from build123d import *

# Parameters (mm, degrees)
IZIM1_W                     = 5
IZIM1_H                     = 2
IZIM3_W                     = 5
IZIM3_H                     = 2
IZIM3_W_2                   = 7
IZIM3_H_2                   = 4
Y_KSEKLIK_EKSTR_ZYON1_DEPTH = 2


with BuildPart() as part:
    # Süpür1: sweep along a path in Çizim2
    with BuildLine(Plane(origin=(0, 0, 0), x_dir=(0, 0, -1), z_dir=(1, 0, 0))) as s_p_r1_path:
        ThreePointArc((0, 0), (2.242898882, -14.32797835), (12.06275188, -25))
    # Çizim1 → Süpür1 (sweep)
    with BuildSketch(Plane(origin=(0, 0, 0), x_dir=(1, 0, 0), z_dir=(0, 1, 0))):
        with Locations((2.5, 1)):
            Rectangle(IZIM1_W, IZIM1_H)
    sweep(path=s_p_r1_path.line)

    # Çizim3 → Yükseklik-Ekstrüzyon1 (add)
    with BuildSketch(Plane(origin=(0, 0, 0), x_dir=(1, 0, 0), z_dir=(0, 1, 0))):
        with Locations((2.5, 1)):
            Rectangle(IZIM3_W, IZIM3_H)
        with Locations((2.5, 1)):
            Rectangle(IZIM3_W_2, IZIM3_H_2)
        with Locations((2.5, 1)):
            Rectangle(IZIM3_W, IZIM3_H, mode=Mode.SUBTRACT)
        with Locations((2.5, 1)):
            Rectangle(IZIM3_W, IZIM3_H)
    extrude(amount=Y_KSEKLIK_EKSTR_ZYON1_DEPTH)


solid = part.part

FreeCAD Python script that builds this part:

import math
import FreeCAD as App
import Part
import Sketcher

V = App.Vector
Q = App.Units.Quantity


def add_polygon(sketch, points):
    """Adds a closed chain of lines whose ends are joined by coincident constraints."""
    first, n = sketch.GeometryCount, len(points)
    for a, b in zip(points, points[1:] + points[:1]):
        sketch.addGeometry(Part.LineSegment(App.Vector(*a, 0), App.Vector(*b, 0)), False)
    for i in range(n):
        sketch.addConstraint(Sketcher.Constraint("Coincident", first + i, 2, first + (i + 1) % n, 1))

doc = App.newDocument("Part")
body = doc.addObject("PartDesign::Body", "Body")

# Sketch on XZ plane
sketch1 = doc.addObject("Sketcher::SketchObject", "Sketch")
body.addObject(sketch1)
sketch1.AttachmentSupport = (doc.XZ_Plane, [""])
sketch1.MapMode = "FlatFace"
add_polygon(sketch1, [(0, -2), (0, 0), (5, 0), (5, -2)])  # lines 0-3
sketch1.addConstraint([
    Sketcher.Constraint("Vertical", 0),
    Sketcher.Constraint("Horizontal", 1),
    Sketcher.Constraint("Vertical", 2),
    Sketcher.Constraint("Horizontal", 3),
    Sketcher.Constraint("Coincident", 0, 2, -1, 1),
    Sketcher.Constraint("DistanceX", 1, 1, 1, 2, Q("5 mm")),
    Sketcher.Constraint("DistanceY", 0, 1, 0, 2, Q("2 mm")),
])

# Sketch on YZ plane
sketch2 = doc.addObject("Sketcher::SketchObject", "Sketch001")
body.addObject(sketch2)
sketch2.AttachmentSupport = (doc.YZ_Plane, [""])
sketch2.MapMode = "FlatFace"
sketch2.addGeometry(Part.ArcOfCircle(Part.Circle(V(-3, -25, 0), V(0, 0, 1), 25), math.radians(82), math.radians(149)), False)
sketch2.addConstraint([
    Sketcher.Constraint("Coincident", 0, 1, -1, 1),
    Sketcher.Constraint("Radius", 0, Q("25 mm")),
    Sketcher.Constraint("DistanceX", 0, 2, -1, 1, Q("25 mm")),
    Sketcher.Constraint("DistanceX", 0, 3, -1, 1, Q("3.46379 mm")),
])
doc.recompute()

additivepipe = doc.addObject("PartDesign::AdditivePipe", "AdditivePipe")
body.addObject(additivepipe)
additivepipe.Profile = sketch1
additivepipe.Spine = (sketch2, ["Edge1"])

# Sketch on XZ plane
sketch3 = doc.addObject("Sketcher::SketchObject", "Sketch002")
body.addObject(sketch3)
sketch3.AttachmentSupport = (doc.XZ_Plane, [""])
sketch3.MapMode = "FlatFace"
add_polygon(sketch3, [(-1, -3), (-1, 1), (6, 1), (6, -3)])  # lines 0-3
sketch3.addConstraint([
    Sketcher.Constraint("Vertical", 0),
    Sketcher.Constraint("Horizontal", 1),
    Sketcher.Constraint("Vertical", 2),
    Sketcher.Constraint("Horizontal", 3),
    Sketcher.Constraint("DistanceX", 1, 1, 1, 2, Q("7 mm")),
    Sketcher.Constraint("DistanceY", 0, 1, 0, 2, Q("4 mm")),
    Sketcher.Constraint("DistanceX", 0, 2, -1, 1, Q("1 mm")),
    Sketcher.Constraint("DistanceY", -1, 1, 0, 2, Q("1 mm")),
])
pad1 = doc.addObject("PartDesign::Pad", "Pad")
body.addObject(pad1)
pad1.Profile = sketch3
pad1.Length = 2
pad1.Reversed = True

doc.recompute()
